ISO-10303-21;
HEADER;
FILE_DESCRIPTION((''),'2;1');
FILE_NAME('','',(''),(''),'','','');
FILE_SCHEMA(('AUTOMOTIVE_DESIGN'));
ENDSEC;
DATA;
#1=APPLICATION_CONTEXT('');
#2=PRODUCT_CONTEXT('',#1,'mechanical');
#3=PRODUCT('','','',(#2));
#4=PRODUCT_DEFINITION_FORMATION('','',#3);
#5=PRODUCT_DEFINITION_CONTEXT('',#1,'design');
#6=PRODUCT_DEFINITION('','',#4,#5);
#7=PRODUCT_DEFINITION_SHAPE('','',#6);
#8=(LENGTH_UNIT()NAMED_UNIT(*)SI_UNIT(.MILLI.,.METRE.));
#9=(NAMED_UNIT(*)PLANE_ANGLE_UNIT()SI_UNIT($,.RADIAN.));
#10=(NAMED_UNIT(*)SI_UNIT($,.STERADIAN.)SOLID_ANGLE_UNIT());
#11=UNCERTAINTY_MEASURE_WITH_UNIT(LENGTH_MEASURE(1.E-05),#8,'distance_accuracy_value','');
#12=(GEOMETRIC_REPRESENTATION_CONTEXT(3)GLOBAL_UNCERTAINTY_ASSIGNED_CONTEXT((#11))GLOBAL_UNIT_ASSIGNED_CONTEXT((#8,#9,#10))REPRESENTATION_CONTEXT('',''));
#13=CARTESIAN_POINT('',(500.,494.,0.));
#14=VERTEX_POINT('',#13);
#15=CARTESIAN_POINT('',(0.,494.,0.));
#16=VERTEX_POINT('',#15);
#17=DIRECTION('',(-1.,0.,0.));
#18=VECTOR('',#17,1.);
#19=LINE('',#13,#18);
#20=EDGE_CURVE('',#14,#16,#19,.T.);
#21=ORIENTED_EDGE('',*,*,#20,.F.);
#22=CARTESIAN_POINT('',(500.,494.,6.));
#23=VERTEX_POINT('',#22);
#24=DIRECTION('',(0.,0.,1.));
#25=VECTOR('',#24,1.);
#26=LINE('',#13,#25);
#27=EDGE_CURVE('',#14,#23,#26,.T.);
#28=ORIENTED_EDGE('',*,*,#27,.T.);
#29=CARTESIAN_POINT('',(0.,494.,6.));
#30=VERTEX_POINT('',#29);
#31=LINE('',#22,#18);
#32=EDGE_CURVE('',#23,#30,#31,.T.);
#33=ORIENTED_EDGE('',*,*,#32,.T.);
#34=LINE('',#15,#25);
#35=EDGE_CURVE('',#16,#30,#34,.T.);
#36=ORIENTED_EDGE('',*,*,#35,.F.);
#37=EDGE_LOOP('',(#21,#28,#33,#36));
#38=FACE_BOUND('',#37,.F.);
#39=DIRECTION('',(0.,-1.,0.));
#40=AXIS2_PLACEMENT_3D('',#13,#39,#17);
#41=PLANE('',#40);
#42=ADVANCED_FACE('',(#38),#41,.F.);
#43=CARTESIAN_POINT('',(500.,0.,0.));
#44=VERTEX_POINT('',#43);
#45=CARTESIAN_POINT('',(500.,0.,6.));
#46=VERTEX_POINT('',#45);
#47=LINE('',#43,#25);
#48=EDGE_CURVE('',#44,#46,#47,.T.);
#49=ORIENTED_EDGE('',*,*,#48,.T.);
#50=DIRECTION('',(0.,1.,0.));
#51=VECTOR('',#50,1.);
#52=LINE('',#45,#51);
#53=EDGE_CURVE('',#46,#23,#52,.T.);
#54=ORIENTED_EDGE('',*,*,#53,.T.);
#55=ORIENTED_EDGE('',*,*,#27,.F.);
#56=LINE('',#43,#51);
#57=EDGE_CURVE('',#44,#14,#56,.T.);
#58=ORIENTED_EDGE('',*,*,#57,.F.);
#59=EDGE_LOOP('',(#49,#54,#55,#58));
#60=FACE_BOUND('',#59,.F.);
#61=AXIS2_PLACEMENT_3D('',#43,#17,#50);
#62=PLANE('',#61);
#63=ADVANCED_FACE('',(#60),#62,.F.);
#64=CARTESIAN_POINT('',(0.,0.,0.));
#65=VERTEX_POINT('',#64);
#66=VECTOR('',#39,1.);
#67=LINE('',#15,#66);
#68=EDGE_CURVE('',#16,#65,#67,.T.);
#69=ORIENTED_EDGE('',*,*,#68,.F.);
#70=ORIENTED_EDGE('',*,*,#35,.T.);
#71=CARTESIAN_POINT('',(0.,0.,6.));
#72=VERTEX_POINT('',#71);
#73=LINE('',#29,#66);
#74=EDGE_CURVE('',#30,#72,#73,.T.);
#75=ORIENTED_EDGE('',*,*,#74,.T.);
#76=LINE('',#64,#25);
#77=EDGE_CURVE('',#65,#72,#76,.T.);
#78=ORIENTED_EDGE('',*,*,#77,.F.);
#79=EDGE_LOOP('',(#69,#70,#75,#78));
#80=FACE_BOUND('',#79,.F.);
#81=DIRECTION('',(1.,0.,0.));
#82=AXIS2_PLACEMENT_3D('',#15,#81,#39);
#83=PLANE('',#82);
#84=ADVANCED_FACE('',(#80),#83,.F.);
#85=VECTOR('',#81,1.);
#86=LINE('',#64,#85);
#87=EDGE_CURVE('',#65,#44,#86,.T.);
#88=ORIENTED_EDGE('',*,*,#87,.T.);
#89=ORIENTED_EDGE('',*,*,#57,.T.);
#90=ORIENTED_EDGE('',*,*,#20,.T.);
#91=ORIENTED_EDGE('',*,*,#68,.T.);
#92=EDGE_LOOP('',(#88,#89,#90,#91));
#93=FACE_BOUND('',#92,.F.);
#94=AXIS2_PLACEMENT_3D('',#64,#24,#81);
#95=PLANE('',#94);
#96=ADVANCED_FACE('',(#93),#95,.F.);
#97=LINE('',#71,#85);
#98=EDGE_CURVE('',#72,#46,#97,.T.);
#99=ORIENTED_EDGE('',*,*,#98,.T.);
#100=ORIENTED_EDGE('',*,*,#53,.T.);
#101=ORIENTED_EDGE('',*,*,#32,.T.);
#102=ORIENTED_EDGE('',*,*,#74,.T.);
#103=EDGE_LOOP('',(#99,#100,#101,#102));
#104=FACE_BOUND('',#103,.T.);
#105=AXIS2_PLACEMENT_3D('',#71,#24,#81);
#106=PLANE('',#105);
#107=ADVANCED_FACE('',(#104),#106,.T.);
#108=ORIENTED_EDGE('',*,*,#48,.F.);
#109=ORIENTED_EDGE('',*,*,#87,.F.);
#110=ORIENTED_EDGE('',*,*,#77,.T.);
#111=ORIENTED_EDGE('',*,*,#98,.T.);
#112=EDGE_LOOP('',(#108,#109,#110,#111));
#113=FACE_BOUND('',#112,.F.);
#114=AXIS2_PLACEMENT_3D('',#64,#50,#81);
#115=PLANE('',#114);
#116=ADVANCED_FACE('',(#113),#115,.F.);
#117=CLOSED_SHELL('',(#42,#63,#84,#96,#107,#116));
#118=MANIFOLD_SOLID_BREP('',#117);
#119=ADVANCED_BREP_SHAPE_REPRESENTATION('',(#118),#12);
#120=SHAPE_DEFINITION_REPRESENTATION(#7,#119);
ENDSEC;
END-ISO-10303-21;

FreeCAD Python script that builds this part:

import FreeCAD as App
import Part
import Sketcher

V = App.Vector
Q = App.Units.Quantity


def add_polygon(sketch, points):
    """Adds a closed chain of lines whose ends are joined by coincident constraints."""
    first, n = sketch.GeometryCount, len(points)
    for a, b in zip(points, points[1:] + points[:1]):
        sketch.addGeometry(Part.LineSegment(App.Vector(*a, 0), App.Vector(*b, 0)), False)
    for i in range(n):
        sketch.addConstraint(Sketcher.Constraint("Coincident", first + i, 2, first + (i + 1) % n, 1))

doc = App.newDocument("Part")
body = doc.addObject("PartDesign::Body", "Body")

sketch1 = body.newObject("Sketcher::SketchObject", "Sketch")
sketch1.AttachmentSupport = (doc.getObject("XY_Plane"), [""])
sketch1.MapMode = "FlatFace"
add_polygon(sketch1, [(0, 494), (0, 0), (500, 0), (500, 494)])
sketch1.addConstraint(Sketcher.Constraint("Vertical", 0))
sketch1.addConstraint(Sketcher.Constraint("Horizontal", 1))
sketch1.addConstraint(Sketcher.Constraint("Vertical", 2))
sketch1.addConstraint(Sketcher.Constraint("Horizontal", 3))
sketch1.addConstraint(Sketcher.Constraint("Coincident", 0, 2, -1, 1))
sketch1.addConstraint(Sketcher.Constraint("DistanceX", 1, 1, 1, 2, Q("500 mm")))
sketch1.addConstraint(Sketcher.Constraint("DistanceY", 0, 2, 0, 1, Q("494 mm")))
pad1 = body.newObject("PartDesign::Pad", "Pad")
pad1.Profile = sketch1
pad1.Length = 6

doc.recompute()
